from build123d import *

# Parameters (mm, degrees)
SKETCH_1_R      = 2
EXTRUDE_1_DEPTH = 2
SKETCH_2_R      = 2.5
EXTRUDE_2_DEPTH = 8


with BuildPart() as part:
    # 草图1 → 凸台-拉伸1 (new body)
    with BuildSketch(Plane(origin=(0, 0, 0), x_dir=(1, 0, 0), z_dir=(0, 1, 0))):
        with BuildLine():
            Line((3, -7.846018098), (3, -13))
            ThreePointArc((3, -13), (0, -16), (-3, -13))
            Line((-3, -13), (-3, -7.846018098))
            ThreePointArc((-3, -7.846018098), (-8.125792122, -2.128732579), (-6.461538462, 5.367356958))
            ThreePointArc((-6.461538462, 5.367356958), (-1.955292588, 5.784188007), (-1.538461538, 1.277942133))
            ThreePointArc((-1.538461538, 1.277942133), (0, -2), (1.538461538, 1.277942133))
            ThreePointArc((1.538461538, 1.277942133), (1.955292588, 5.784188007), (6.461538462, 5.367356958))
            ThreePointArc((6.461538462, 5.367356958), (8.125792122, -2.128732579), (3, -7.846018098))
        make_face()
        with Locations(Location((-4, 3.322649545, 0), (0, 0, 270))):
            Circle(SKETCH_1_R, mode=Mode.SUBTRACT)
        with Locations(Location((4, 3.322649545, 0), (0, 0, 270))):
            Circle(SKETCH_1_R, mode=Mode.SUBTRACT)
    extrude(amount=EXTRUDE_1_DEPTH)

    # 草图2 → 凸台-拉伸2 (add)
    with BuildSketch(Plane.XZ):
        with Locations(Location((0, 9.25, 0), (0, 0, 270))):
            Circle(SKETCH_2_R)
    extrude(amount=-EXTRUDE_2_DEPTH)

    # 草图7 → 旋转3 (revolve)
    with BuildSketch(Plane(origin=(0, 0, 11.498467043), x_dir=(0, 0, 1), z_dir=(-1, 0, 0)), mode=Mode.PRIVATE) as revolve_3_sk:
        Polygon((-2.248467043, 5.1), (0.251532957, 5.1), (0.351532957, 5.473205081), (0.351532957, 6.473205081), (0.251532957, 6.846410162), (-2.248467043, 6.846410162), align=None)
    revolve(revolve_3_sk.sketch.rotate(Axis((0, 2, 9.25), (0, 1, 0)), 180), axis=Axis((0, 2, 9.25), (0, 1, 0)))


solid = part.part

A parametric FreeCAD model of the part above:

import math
import FreeCAD as App
import Part
import Sketcher
Q = App.Units.Quantity


def add_polygon(sketch, points):
    """Adds a closed chain of lines whose ends are joined by coincident constraints."""
    first, n = sketch.GeometryCount, len(points)
    for a, b in zip(points, points[1:] + points[:1]):
        sketch.addGeometry(Part.LineSegment(App.Vector(*a, 0), App.Vector(*b, 0)), False)
    for i in range(n):
        sketch.addConstraint(Sketcher.Constraint("Coincident", first + i, 2, first + (i + 1) % n, 1))

doc = App.newDocument("Part")
body = doc.addObject("PartDesign::Body", "Body")

# Sketch on XZ plane
sketch1 = body.newObject("Sketcher::SketchObject", "Sketch")
sketch1.AttachmentSupport = (doc.getObject("XZ_Plane"), [""])
sketch1.MapMode = "FlatFace"
sketch1.addGeometry([
    Part.LineSegment(App.Vector(3, 13, 0), App.Vector(3, 7.8, 0)),  # 0
    Part.ArcOfCircle(Part.Circle(App.Vector(0, 0, 0), App.Vector(0, 0, 1), 8.4), math.radians(-40), math.radians(69)),  # 1
    Part.ArcOfCircle(Part.Circle(App.Vector(4, -3.3, 0), App.Vector(0, 0, 1), 3.2), math.radians(140), math.radians(320)),  # 2
    Part.ArcOfCircle(Part.Circle(App.Vector(0, 0, 0), App.Vector(0, 0, 1), 2), math.radians(-40), math.radians(220)),  # 3
    Part.ArcOfCircle(Part.Circle(App.Vector(-4, -3.3, 0), App.Vector(0, 0, 1), 3.2), math.radians(-140), math.radians(40)),  # 4
    Part.ArcOfCircle(Part.Circle(App.Vector(0, 0, 0), App.Vector(0, 0, 1), 8.4), math.radians(111), math.radians(220)),  # 5
    Part.LineSegment(App.Vector(-3, 7.8, 0), App.Vector(-3, 13, 0)),  # 6
    Part.ArcOfCircle(Part.Circle(App.Vector(0, 13, 0), App.Vector(0, 0, 1), 3), math.radians(0), math.radians(180)),  # 7
    Part.Circle(App.Vector(4, -3.3, 0), App.Vector(0, 0, 1), 2),  # 8
    Part.Circle(App.Vector(-4, -3.3, 0), App.Vector(0, 0, 1), 2),  # 9
], False)
sketch1.addConstraint([
    Sketcher.Constraint("Coincident", 0, 2, 1, 2),
    Sketcher.Constraint("Tangent", 1, 1, 2, 2),
    Sketcher.Constraint("Tangent", 2, 1, 3, 1),
    Sketcher.Constraint("Tangent", 3, 2, 4, 2),
    Sketcher.Constraint("Tangent", 4, 1, 5, 2),
    Sketcher.Constraint("Coincident", 5, 1, 6, 1),
    Sketcher.Constraint("Tangent", 6, 2, 7, 2),
    Sketcher.Constraint("Tangent", 7, 1, 0, 1),
    Sketcher.Constraint("Vertical", 0),
    Sketcher.Constraint("Vertical", 6),
    Sketcher.Constraint("Coincident", 1, 3, -1, 1),
    Sketcher.Constraint("Coincident", 3, 3, -1, 1),
    Sketcher.Constraint("Coincident", 5, 3, -1, 1),
    Sketcher.Constraint("Coincident", 8, 3, 2, 3),
    Sketcher.Constraint("Coincident", 9, 3, 4, 3),
    Sketcher.Constraint("Equal", 2, 4),
    Sketcher.Constraint("Equal", 3, 8),
    Sketcher.Constraint("Equal", 8, 9),
    Sketcher.Constraint("PointOnObject", 7, 3, -2),
    Sketcher.Constraint("Horizontal", 2, 3, 4, 3),
    Sketcher.Constraint("Diameter", 8, Q("4 mm")),
    Sketcher.Constraint("Radius", 7, Q("3 mm")),
    Sketcher.Constraint("Radius", 1, Q("8.4 mm")),
    Sketcher.Constraint("DistanceX", -1, 1, 2, 3, Q("4 mm")),
    Sketcher.Constraint("DistanceY", -1, 1, 7, 3, Q("13 mm")),
])
pad1 = body.newObject("PartDesign::Pad", "Pad")
pad1.Profile = sketch1
pad1.Length = 2
pad1.Reversed = True

# Sketch on XZ plane
sketch2 = body.newObject("Sketcher::SketchObject", "Sketch001")
sketch2.AttachmentSupport = (doc.getObject("XZ_Plane"), [""])
sketch2.MapMode = "FlatFace"
sketch2.addGeometry(Part.Circle(App.Vector(0, 9.2, 0), App.Vector(0, 0, 1), 2.5), False)
sketch2.addConstraint([
    Sketcher.Constraint("PointOnObject", 0, 3, -2),
    Sketcher.Constraint("Diameter", 0, Q("5 mm")),
    Sketcher.Constraint("DistanceY", -1, 1, 0, 3, Q("9.25 mm")),
])
pad2 = body.newObject("PartDesign::Pad", "Pad001")
pad2.Profile = sketch2
pad2.Length = 8
pad2.Reversed = True

# Sketch on YZ plane
sketch3 = body.newObject("Sketcher::SketchObject", "Sketch002")
sketch3.AttachmentSupport = (doc.getObject("YZ_Plane"), [""])
sketch3.MapMode = "FlatFace"
add_polygon(sketch3, [(5.1, 9.25), (5.1, 11.75), (5.47, 11.85), (6.47, 11.85), (6.85, 11.75), (6.85, 9.25)])  # lines 0-5
sketch3.addGeometry(Part.LineSegment(App.Vector(5.1, 9.25, 0), App.Vector(6.85, 9.25, 0)), True)  # axis
sketch3.addConstraint([
    Sketcher.Constraint("Vertical", 0),
    Sketcher.Constraint("Horizontal", 2),
    Sketcher.Constraint("Vertical", 4),
    Sketcher.Constraint("Horizontal", 5),
    Sketcher.Constraint("Horizontal", 6),
    Sketcher.Constraint("Coincident", 6, 1, 5, 2),
    Sketcher.Constraint("Horizontal", 0, 2, 3, 2),
    Sketcher.Constraint("Vertical", 3, 2, 6, 2),
    Sketcher.Constraint("Equal", 1, 3),
    Sketcher.Constraint("DistanceX", 2, 1, 2, 2, Q("1 mm")),
    Sketcher.Constraint("Angle", 1, Q("15 deg")),
    Sketcher.Constraint("DistanceY", 0, 1, 0, 2, Q("2.5 mm")),
    Sketcher.Constraint("DistanceX", -1, 1, 0, 2, Q("5.1 mm")),
    Sketcher.Constraint("DistanceY", 0, 2, 1, 2, Q("0.1 mm")),
    Sketcher.Constraint("DistanceY", -1, 1, 0, 2, Q("11.75 mm")),
])
revolution = body.newObject("PartDesign::Revolution", "Revolution")
revolution.Profile = sketch3
revolution.ReferenceAxis = (sketch3, ["Axis0"])
revolution.Angle = 360

doc.recompute()
